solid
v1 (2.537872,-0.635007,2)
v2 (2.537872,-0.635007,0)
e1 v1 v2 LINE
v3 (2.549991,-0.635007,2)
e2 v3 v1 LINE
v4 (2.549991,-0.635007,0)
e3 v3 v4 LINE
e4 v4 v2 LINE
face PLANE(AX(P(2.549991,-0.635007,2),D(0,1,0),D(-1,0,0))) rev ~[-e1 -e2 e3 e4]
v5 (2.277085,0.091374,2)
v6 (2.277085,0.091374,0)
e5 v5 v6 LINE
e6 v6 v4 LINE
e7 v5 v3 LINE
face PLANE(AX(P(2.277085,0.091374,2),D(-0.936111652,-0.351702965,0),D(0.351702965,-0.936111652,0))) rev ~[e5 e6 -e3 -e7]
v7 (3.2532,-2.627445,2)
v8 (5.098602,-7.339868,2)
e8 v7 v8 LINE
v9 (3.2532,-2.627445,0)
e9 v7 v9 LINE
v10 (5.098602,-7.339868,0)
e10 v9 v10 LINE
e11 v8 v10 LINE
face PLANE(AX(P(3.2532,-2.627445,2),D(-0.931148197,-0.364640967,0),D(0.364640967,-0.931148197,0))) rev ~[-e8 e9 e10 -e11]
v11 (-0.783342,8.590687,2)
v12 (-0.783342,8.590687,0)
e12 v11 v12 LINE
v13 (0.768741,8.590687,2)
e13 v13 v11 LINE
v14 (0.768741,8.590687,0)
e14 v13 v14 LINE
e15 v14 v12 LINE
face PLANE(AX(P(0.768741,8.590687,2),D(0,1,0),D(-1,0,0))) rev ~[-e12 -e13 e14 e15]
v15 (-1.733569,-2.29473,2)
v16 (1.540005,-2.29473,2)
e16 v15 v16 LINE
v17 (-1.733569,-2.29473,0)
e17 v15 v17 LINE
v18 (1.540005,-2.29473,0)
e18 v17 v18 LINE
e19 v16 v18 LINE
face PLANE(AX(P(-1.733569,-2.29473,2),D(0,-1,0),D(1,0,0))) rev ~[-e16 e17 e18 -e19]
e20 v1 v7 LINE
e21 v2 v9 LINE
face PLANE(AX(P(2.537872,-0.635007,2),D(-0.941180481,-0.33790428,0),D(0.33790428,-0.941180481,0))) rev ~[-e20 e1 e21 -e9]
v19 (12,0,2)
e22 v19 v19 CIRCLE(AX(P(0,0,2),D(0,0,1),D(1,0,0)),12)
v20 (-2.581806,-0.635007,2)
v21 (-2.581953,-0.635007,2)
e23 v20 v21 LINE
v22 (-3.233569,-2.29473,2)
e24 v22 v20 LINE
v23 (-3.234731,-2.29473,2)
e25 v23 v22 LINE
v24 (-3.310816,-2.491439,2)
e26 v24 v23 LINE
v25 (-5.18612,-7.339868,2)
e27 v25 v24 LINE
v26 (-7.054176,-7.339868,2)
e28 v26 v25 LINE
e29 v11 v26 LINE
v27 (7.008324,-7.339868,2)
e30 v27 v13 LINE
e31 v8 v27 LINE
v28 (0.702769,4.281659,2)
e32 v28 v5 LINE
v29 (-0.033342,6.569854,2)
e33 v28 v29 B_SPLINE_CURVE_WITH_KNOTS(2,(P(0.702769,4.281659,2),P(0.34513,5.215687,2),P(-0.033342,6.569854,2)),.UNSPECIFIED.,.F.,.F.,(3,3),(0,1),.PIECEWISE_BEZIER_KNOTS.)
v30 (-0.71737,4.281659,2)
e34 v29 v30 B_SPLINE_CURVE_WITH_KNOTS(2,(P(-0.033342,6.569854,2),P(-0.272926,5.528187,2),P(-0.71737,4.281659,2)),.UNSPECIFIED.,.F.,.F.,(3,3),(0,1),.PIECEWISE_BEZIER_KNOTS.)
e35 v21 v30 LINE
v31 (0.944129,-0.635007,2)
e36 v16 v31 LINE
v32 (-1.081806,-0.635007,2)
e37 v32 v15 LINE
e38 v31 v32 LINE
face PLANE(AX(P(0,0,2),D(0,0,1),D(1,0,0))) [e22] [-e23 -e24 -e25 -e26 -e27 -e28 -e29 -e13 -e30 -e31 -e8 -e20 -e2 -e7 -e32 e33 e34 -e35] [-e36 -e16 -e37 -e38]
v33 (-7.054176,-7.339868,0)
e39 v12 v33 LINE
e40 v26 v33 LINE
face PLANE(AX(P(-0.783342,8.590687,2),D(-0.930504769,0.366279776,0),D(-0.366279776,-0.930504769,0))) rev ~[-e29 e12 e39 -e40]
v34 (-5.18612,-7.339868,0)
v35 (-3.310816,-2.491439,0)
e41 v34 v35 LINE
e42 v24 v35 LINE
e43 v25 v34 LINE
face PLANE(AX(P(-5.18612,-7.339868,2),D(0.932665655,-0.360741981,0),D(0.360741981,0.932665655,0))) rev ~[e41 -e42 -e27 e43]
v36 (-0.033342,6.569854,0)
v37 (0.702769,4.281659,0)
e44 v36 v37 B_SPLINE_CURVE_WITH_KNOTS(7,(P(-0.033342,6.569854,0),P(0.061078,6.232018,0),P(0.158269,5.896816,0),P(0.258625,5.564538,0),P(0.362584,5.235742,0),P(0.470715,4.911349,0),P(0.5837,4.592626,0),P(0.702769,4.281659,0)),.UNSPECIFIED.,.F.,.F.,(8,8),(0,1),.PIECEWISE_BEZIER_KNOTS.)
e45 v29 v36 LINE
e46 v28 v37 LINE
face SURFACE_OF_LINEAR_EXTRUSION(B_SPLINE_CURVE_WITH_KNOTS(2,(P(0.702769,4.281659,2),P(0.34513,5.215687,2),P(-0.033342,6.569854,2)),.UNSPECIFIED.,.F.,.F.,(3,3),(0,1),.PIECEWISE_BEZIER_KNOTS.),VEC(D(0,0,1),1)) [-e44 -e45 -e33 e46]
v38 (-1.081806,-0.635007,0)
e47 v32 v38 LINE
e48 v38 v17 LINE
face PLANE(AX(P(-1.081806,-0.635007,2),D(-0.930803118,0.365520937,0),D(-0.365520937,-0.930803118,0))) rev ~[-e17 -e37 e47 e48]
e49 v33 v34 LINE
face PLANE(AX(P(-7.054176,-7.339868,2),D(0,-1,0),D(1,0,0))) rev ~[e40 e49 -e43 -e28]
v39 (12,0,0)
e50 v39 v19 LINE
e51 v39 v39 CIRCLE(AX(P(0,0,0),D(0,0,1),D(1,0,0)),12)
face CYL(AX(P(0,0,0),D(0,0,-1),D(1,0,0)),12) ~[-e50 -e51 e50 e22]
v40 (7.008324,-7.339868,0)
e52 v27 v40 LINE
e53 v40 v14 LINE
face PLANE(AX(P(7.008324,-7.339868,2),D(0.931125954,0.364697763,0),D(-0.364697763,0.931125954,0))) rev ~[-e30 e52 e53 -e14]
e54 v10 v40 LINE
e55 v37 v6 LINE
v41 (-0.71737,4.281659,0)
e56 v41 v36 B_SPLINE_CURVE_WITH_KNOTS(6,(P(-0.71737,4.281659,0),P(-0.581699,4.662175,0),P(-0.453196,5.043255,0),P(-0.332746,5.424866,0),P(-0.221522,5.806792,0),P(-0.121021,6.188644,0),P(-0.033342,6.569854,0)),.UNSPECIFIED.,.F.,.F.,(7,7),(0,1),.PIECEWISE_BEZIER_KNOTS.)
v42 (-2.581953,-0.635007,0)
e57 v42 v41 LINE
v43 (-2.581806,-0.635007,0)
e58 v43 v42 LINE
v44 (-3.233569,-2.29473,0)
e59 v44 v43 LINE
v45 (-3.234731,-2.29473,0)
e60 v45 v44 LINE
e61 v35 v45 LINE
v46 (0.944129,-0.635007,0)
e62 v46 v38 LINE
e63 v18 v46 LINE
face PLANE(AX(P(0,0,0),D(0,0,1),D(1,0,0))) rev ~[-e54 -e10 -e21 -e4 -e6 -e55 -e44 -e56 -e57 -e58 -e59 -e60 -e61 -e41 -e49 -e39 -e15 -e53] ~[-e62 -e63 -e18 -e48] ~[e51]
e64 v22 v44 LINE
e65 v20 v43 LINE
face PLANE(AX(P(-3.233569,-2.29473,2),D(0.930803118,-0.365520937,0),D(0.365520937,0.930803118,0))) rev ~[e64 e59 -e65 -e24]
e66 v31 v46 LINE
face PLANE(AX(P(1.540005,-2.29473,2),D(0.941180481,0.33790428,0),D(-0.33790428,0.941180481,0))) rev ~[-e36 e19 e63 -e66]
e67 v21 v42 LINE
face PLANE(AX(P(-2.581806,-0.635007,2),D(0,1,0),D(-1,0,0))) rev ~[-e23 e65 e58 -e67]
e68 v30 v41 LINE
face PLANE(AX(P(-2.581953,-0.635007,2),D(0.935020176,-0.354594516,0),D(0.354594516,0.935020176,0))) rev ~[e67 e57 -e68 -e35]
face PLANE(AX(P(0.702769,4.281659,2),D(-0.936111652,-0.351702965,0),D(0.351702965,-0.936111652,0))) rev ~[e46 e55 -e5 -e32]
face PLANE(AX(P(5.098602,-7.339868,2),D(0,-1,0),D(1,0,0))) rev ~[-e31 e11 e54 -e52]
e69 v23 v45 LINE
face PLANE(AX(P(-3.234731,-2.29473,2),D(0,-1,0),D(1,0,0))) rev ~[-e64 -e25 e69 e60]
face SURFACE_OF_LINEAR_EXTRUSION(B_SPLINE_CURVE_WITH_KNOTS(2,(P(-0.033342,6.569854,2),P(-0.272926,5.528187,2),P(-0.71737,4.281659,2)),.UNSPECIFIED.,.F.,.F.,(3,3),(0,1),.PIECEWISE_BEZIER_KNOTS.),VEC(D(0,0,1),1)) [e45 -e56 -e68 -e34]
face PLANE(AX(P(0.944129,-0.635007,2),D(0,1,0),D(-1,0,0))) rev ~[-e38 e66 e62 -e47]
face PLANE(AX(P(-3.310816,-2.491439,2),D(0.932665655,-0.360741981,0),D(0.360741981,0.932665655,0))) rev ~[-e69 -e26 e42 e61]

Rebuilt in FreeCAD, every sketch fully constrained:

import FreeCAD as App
import Part
import Sketcher
from FreeCAD import Vector


def add_polygon(sketch, points):
    """Adds a closed chain of lines whose ends are joined by coincident constraints."""
    first, n = sketch.GeometryCount, len(points)
    for a, b in zip(points, points[1:] + points[:1]):
        sketch.addGeometry(Part.LineSegment(App.Vector(*a, 0), App.Vector(*b, 0)), False)
    for i in range(n):
        sketch.addConstraint(Sketcher.Constraint("Coincident", first + i, 2, first + (i + 1) % n, 1))

doc = App.newDocument("Part")
body = doc.addObject("PartDesign::Body", "Body")

# Sketch on XY plane
sketch1 = body.newObject("Sketcher::SketchObject", "Sketch")
sketch1.AttachmentSupport = (doc.getObject("XY_Plane"), [""])
sketch1.MapMode = "FlatFace"
sketch1.addGeometry(Part.Circle(Vector(0, 0, 0), Vector(0, 0, 1), 12), False)
sketch1.addConstraint(Sketcher.Constraint("Coincident", 0, 3, -1, 1))
sketch1.addConstraint(Sketcher.Constraint("Diameter", 0, 24.0))
pad1 = body.newObject("PartDesign::Pad", "Pad")
pad1.Profile = sketch1
pad1.Length = 2

# Sketch on XY plane
sketch2 = body.newObject("Sketcher::SketchObject", "Sketch001")
sketch2.AttachmentSupport = (doc.getObject("XY_Plane"), [""])
sketch2.MapMode = "FlatFace"
sketch2.AttachmentOffset = App.Placement(Vector(0, 0, 2), App.Rotation())
add_polygon(sketch2, [(0.944129, -0.635007), (-1.081806, -0.635007), (-1.733569, -2.29473), (1.540005, -2.29473)])  # lines 0-3
sketch2.addGeometry(Part.LineSegment(Vector(-3.233569, -2.29473, 0), Vector(-2.581806, -0.635007, 0)), False)  # 4
sketch2.addGeometry(Part.LineSegment(Vector(-2.581806, -0.635007, 0), Vector(-2.581953, -0.635007, 0)), False)  # 5
sketch2.addGeometry(Part.LineSegment(Vector(-2.581953, -0.635007, 0), Vector(-0.71737, 4.281659, 0)), False)  # 6
sketch2.addGeometry(Part.BSplineCurve([Vector(-0.033342, 6.569854, 0), Vector(-0.272926, 5.528187, 0), Vector(-0.71737, 4.281659, 0)], [3, 3], [0, 1], False, 2, [1, 1, 1], False), False)  # 7
sketch2.addGeometry(Part.BSplineCurve([Vector(0.702769, 4.281659, 0), Vector(0.34513, 5.215687, 0), Vector(-0.033342, 6.569854, 0)], [3, 3], [0, 1], False, 2, [1, 1, 1], False), False)  # 8
sketch2.addGeometry(Part.LineSegment(Vector(0.702769, 4.281659, 0), Vector(2.277085, 0.091374, 0)), False)  # 9
sketch2.addGeometry(Part.LineSegment(Vector(2.277085, 0.091374, 0), Vector(2.549991, -0.635007, 0)), False)  # 10
sketch2.addGeometry(Part.LineSegment(Vector(2.549991, -0.635007, 0), Vector(2.537872, -0.635007, 0)), False)  # 11
sketch2.addGeometry(Part.LineSegment(Vector(2.537872, -0.635007, 0), Vector(3.2532, -2.627445, 0)), False)  # 12
sketch2.addGeometry(Part.LineSegment(Vector(3.2532, -2.627445, 0), Vector(5.098602, -7.339868, 0)), False)  # 13
sketch2.addGeometry(Part.LineSegment(Vector(5.098602, -7.339868, 0), Vector(7.008324, -7.339868, 0)), False)  # 14
sketch2.addGeometry(Part.LineSegment(Vector(7.008324, -7.339868, 0), Vector(0.768741, 8.590687, 0)), False)  # 15
sketch2.addGeometry(Part.LineSegment(Vector(0.768741, 8.590687, 0), Vector(-0.783342, 8.590687, 0)), False)  # 16
sketch2.addGeometry(Part.LineSegment(Vector(-0.783342, 8.590687, 0), Vector(-7.054176, -7.339868, 0)), False)  # 17
sketch2.addGeometry(Part.LineSegment(Vector(-7.054176, -7.339868, 0), Vector(-5.18612, -7.339868, 0)), False)  # 18
sketch2.addGeometry(Part.LineSegment(Vector(-5.18612, -7.339868, 0), Vector(-3.310816, -2.491439, 0)), False)  # 19
sketch2.addGeometry(Part.LineSegment(Vector(-3.310816, -2.491439, 0), Vector(-3.234731, -2.29473, 0)), False)  # 20
sketch2.addGeometry(Part.LineSegment(Vector(-3.234731, -2.29473, 0), Vector(-3.233569, -2.29473, 0)), False)  # 21
sketch2.addConstraint(Sketcher.Constraint("Block", 7))
sketch2.addConstraint(Sketcher.Constraint("Block", 8))
sketch2.addConstraint(Sketcher.Constraint("Coincident", 4, 2, 5, 1))
sketch2.addConstraint(Sketcher.Constraint("Coincident", 5, 2, 6, 1))
sketch2.addConstraint(Sketcher.Constraint("Coincident", 6, 2, 7, 2))
sketch2.addConstraint(Sketcher.Constraint("Coincident", 8, 1, 9, 1))
sketch2.addConstraint(Sketcher.Constraint("Coincident", 9, 2, 10, 1))
sketch2.addConstraint(Sketcher.Constraint("Coincident", 10, 2, 11, 1))
sketch2.addConstraint(Sketcher.Constraint("Coincident", 11, 2, 12, 1))
sketch2.addConstraint(Sketcher.Constraint("Coincident", 12, 2, 13, 1))
sketch2.addConstraint(Sketcher.Constraint("Coincident", 13, 2, 14, 1))
sketch2.addConstraint(Sketcher.Constraint("Coincident", 14, 2, 15, 1))
sketch2.addConstraint(Sketcher.Constraint("Coincident", 15, 2, 16, 1))
sketch2.addConstraint(Sketcher.Constraint("Coincident", 16, 2, 17, 1))
sketch2.addConstraint(Sketcher.Constraint("Coincident", 17, 2, 18, 1))
sketch2.addConstraint(Sketcher.Constraint("Coincident", 18, 2, 19, 1))
sketch2.addConstraint(Sketcher.Constraint("Coincident", 19, 2, 20, 1))
sketch2.addConstraint(Sketcher.Constraint("Coincident", 20, 2, 21, 1))
sketch2.addConstraint(Sketcher.Constraint("Coincident", 21, 2, 4, 1))
sketch2.addConstraint(Sketcher.Constraint("Horizontal", 0))
sketch2.addConstraint(Sketcher.Constraint("Horizontal", 2))
sketch2.addConstraint(Sketcher.Constraint("Horizontal", 5))
sketch2.addConstraint(Sketcher.Constraint("Horizontal", 11))
sketch2.addConstraint(Sketcher.Constraint("Horizontal", 14))
sketch2.addConstraint(Sketcher.Constraint("Horizontal", 16))
sketch2.addConstraint(Sketcher.Constraint("Horizontal", 18))
sketch2.addConstraint(Sketcher.Constraint("Horizontal", 21))
sketch2.addConstraint(Sketcher.Constraint("DistanceX", 4, 2, 0, 2, 1.5))
sketch2.addConstraint(Sketcher.Constraint("DistanceX", 21, 2, 1, 2, 1.5))
sketch2.addConstraint(Sketcher.Constraint("DistanceX", 11, 2, 11, 1, 0.012119))
sketch2.addConstraint(Sketcher.Constraint("DistanceX", -1, 1, 12, 2, 3.2532))
sketch2.addConstraint(Sketcher.Constraint("DistanceX", 6, 2, 3, 2, 1.661499))
sketch2.addConstraint(Sketcher.Constraint("DistanceX", 1, 2, 6, 2, 1.016199))
sketch2.addConstraint(Sketcher.Constraint("DistanceX", 12, 2, 13, 2, 1.845402))
sketch2.addConstraint(Sketcher.Constraint("Distance", 20, 0.210911))
sketch2.addConstraint(Sketcher.Constraint("DistanceX", 0, 2, 0, 1, 2.025934))
sketch2.addConstraint(Sketcher.Constraint("DistanceX", 2, 1, 2, 2, 3.273574))
sketch2.addConstraint(Sketcher.Constraint("DistanceX", 5, 2, 5, 1, 0.000148))
sketch2.addConstraint(Sketcher.Constraint("DistanceX", 14, 1, 14, 2, 1.909722))
sketch2.addConstraint(Sketcher.Constraint("DistanceX", 16, 2, 16, 1, 1.552083))
sketch2.addConstraint(Sketcher.Constraint("DistanceX", 18, 1, 18, 2, 1.868056))
sketch2.addConstraint(Sketcher.Constraint("DistanceX", 21, 1, 21, 2, 0.001162))
sketch2.addConstraint(Sketcher.Constraint("DistanceY", 1, 2, -1, 1, 2.29473))
sketch2.addConstraint(Sketcher.Constraint("DistanceX", -1, 1, 10, 2, 2.549991))
sketch2.addConstraint(Sketcher.Constraint("DistanceY", 13, 2, -1, 1, 7.339868))
sketch2.addConstraint(Sketcher.Constraint("DistanceX", -1, 1, 15, 2, 0.768741))
sketch2.addConstraint(Sketcher.Constraint("DistanceY", 17, 2, -1, 1, 7.339868))
sketch2.addConstraint(Sketcher.Constraint("DistanceX", 18, 2, -1, 1, 5.18612))
sketch2.addConstraint(Sketcher.Constraint("DistanceY", 19, 2, -1, 1, 2.491439))
sketch2.addConstraint(Sketcher.Constraint("DistanceY", 20, 2, -1, 1, 2.29473))
sketch2.addConstraint(Sketcher.Constraint("DistanceY", 3, 2, 9, 2, 0.726382))
sketch2.addConstraint(Sketcher.Constraint("DistanceX", 2, 2, 9, 2, 0.73708))
sketch2.addConstraint(Sketcher.Constraint("DistanceY", 4, 2, 9, 2, 0.726382))
sketch2.addConstraint(Sketcher.Constraint("DistanceY", 10, 2, 9, 2, 0.726382))
sketch2.addConstraint(Sketcher.Constraint("DistanceY", 12, 2, 9, 2, 2.718819))
sketch2.addConstraint(Sketcher.Constraint("DistanceY", 13, 2, 10, 2, 6.704861))
sketch2.addConstraint(Sketcher.Constraint("Distance", 15, 17.108916))
pocket1 = body.newObject("PartDesign::Pocket", "Pocket")
pocket1.Profile = sketch2
pocket1.Length = 25

doc.recompute()
